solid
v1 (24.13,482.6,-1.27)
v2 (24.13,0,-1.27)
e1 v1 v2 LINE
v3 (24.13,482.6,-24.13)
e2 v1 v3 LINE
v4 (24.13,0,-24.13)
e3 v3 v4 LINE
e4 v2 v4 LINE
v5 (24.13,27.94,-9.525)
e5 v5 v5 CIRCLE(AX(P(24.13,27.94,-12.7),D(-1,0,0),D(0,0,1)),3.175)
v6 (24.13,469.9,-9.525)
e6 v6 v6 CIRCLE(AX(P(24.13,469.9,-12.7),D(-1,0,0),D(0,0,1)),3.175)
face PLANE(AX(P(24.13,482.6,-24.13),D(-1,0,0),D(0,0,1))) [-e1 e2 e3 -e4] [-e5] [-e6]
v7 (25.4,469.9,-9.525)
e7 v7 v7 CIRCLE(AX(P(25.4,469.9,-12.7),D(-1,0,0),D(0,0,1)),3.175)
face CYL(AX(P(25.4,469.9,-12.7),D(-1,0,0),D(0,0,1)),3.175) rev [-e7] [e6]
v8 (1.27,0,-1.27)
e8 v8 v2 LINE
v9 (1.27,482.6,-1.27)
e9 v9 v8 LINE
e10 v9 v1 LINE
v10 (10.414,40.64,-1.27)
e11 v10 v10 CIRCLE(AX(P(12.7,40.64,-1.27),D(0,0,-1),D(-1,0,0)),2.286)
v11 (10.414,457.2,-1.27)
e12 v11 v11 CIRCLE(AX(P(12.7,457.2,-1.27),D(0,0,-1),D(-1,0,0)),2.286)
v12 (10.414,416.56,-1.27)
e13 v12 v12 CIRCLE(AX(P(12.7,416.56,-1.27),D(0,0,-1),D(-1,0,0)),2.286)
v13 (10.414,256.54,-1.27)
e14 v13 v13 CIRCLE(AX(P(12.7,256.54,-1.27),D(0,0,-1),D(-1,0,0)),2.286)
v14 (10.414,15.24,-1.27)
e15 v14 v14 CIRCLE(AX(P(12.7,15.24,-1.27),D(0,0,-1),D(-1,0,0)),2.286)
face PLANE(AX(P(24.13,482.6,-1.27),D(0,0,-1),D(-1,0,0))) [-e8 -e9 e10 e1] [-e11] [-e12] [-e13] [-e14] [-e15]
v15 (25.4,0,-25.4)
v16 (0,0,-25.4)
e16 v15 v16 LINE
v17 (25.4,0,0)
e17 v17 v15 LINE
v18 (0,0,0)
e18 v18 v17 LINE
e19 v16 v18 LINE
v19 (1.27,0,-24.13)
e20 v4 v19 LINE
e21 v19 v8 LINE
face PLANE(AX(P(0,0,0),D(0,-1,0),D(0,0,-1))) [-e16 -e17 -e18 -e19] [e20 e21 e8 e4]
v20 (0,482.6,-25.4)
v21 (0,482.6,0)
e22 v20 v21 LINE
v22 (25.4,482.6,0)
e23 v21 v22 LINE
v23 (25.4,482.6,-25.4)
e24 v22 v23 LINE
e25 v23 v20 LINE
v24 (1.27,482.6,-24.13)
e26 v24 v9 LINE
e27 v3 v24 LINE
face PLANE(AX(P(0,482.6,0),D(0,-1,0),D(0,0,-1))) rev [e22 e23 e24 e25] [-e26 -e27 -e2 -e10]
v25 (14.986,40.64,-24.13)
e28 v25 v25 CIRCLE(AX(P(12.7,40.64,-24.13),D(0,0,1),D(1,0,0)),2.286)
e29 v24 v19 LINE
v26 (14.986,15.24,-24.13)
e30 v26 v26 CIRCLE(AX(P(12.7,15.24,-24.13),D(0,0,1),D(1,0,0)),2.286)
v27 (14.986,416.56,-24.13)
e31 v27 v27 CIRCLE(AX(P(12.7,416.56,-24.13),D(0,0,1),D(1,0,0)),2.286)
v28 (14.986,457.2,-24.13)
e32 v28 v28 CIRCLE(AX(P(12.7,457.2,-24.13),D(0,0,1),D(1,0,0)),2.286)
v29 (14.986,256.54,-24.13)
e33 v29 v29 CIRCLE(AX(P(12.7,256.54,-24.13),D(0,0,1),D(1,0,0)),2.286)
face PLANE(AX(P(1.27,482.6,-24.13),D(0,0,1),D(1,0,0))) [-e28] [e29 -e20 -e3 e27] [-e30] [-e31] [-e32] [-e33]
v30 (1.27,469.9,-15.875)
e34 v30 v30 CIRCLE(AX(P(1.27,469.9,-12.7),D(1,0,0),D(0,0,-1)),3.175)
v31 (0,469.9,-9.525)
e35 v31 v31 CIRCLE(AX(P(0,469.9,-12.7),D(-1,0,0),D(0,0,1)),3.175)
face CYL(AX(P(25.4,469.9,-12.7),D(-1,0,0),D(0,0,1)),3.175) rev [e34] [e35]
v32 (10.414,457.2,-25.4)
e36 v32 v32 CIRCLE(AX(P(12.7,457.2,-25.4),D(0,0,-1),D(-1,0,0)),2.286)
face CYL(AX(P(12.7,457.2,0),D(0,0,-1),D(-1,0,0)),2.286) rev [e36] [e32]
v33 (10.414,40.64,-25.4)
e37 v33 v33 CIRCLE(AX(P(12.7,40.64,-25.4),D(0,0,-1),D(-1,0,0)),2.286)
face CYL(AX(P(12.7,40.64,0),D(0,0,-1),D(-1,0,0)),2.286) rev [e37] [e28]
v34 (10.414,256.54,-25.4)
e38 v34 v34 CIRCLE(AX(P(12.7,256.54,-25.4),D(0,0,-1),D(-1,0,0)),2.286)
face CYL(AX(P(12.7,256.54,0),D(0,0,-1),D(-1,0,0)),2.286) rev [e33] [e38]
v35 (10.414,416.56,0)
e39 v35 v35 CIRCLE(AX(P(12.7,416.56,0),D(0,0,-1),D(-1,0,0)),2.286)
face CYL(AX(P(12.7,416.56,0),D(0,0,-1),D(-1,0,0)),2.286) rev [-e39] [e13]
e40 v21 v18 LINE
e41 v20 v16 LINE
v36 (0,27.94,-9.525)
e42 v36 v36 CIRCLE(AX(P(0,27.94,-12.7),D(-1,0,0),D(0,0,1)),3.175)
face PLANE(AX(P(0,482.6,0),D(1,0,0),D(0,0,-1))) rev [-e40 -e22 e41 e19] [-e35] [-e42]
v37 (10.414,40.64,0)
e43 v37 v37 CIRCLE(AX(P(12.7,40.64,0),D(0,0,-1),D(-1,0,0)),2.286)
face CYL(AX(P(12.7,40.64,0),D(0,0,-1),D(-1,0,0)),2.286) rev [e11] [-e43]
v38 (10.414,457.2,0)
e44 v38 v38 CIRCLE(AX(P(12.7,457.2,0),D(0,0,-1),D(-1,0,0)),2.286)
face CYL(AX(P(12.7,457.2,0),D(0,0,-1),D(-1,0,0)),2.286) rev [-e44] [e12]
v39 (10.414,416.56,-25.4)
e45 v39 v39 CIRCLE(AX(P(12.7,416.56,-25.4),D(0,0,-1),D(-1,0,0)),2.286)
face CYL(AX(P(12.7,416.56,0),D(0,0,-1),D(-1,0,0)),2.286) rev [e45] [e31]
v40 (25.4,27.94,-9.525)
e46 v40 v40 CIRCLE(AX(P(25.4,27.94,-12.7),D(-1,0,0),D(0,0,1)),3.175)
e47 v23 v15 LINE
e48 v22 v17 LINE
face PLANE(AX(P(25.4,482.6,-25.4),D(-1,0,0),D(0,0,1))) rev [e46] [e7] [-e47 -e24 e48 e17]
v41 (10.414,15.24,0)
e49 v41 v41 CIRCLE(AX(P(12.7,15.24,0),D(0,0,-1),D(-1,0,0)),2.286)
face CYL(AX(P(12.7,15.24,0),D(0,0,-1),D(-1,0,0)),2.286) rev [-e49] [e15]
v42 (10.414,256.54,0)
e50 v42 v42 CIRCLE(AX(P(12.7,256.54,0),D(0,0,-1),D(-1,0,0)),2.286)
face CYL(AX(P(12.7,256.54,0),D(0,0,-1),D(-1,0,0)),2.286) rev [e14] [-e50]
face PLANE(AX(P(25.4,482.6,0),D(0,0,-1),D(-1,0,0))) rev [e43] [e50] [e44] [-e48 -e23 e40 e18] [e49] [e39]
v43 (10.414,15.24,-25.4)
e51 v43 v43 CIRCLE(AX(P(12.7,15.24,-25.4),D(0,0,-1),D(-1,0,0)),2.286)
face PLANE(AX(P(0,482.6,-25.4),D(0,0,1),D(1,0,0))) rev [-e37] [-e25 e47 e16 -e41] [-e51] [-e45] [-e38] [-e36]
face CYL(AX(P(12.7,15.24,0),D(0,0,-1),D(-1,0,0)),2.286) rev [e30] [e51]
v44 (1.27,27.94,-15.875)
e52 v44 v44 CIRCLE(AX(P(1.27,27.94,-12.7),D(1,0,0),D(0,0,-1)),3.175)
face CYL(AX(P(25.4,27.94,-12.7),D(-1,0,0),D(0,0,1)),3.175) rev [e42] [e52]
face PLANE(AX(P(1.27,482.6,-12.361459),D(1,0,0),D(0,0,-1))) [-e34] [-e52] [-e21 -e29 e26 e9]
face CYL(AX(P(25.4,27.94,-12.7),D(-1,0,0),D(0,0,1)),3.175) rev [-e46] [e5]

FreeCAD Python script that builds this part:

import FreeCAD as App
import Part
import Sketcher
from FreeCAD import Vector
Q = App.Units.Quantity

doc = App.newDocument("Part")
params = doc.addObject("Spreadsheet::Sheet", "Params")
for row, (alias, value) in enumerate([
    ("sketch1_width", "1 in"),
    ("sketch1_width2", "0.9 in"),
    ("pad1_length", "19 in"),
    ("sketch2_diameter", "0.18 in"),
    ("sketch3_diameter", "0.18 in"),
    ("sketch4_diameter", "0.18 in"),
    ("sketch5_diameter", "0.18 in"),
    ("sketch6_diameter", "0.18 in"),
    ("sketch7_diameter", "0.25 in"),
    ("sketch8_diameter", "0.25 in"),
], start=1):
    params.set(f"A{row}", alias)
    params.set(f"B{row}", "=" + value)
    params.setAlias(f"B{row}", alias)

body = doc.addObject("PartDesign::Body", "Body")

# Sketch on XZ plane
sketch1 = body.newObject("Sketcher::SketchObject", "Sketch")
sketch1.AttachmentSupport = (doc.getObject("XZ_Plane"), [""])
sketch1.MapMode = "FlatFace"
sketch1.addGeometry([
    Part.LineSegment(Vector(0, -25, 0), Vector(0, 0, 0)),  # 0
    Part.LineSegment(Vector(0, 0, 0), Vector(25, 0, 0)),  # 1
    Part.LineSegment(Vector(25, 0, 0), Vector(25, -25, 0)),  # 2
    Part.LineSegment(Vector(25, -25, 0), Vector(0, -25, 0)),  # 3
    Part.LineSegment(Vector(1, -1, 0), Vector(1, -24, 0)),  # 4
    Part.LineSegment(Vector(1, -24, 0), Vector(24, -24, 0)),  # 5
    Part.LineSegment(Vector(24, -24, 0), Vector(24, -1, 0)),  # 6
    Part.LineSegment(Vector(24, -1, 0), Vector(1, -1, 0)),  # 7
], False)
sketch1.addConstraint([
    Sketcher.Constraint("Coincident", 0, 2, 1, 1),
    Sketcher.Constraint("Coincident", 1, 2, 2, 1),
    Sketcher.Constraint("Coincident", 2, 2, 3, 1),
    Sketcher.Constraint("Coincident", 3, 2, 0, 1),
    Sketcher.Constraint("Coincident", 4, 2, 5, 1),
    Sketcher.Constraint("Coincident", 5, 2, 6, 1),
    Sketcher.Constraint("Coincident", 6, 2, 7, 1),
    Sketcher.Constraint("Coincident", 7, 2, 4, 1),
    Sketcher.Constraint("Vertical", 0),
    Sketcher.Constraint("Horizontal", 1),
    Sketcher.Constraint("Vertical", 2),
    Sketcher.Constraint("Horizontal", 3),
    Sketcher.Constraint("Vertical", 4),
    Sketcher.Constraint("Horizontal", 5),
    Sketcher.Constraint("Vertical", 6),
    Sketcher.Constraint("Horizontal", 7),
    Sketcher.Constraint("Coincident", 0, 2, -1, 1),
    Sketcher.Constraint("Equal", 3, 0),
    Sketcher.Constraint("Equal", 7, 4),
    Sketcher.Constraint("DistanceX", 1, 1, 1, 2, Q("1 in")),
    Sketcher.Constraint("DistanceX", 5, 1, 5, 2, Q("0.9 in")),
    Sketcher.Constraint("DistanceX", -1, 1, 4, 2, Q("0.05 in")),
    Sketcher.Constraint("DistanceY", 4, 2, -1, 1, Q("0.95 in")),
])
sketch1.setExpression("Constraints[19]", "Params.sketch1_width")
sketch1.setExpression("Constraints[20]", "Params.sketch1_width2")
pad1 = body.newObject("PartDesign::Pad", "Pad")
pad1.Profile = sketch1
pad1.setExpression("Length", "Params.pad1_length")
pad1.Reversed = True

# Sketch on XY plane
sketch2 = body.newObject("Sketcher::SketchObject", "Sketch001")
sketch2.AttachmentSupport = (doc.getObject("XY_Plane"), [""])
sketch2.MapMode = "FlatFace"
sketch2.AttachmentOffset = App.Placement(Vector(0, 0, -1 * 25.4), App.Rotation())
sketch2.addGeometry(Part.Circle(Vector(12.7, 416.6, 0), Vector(0, 0, 1), 2.3), False)
sketch2.addConstraint([
    Sketcher.Constraint("Diameter", 0, Q("0.18 in")),
    Sketcher.Constraint("DistanceX", -1, 1, 0, 3, Q("0.5 in")),
    Sketcher.Constraint("DistanceY", -1, 1, 0, 3, Q("16.4 in")),
])
sketch2.setExpression("Constraints[0]", "Params.sketch2_diameter")
pocket1 = body.newObject("PartDesign::Pocket", "Pocket")
pocket1.Profile = sketch2
pocket1.Type = "ThroughAll"
pocket1.Reversed = True

# Sketch on XY plane
sketch3 = body.newObject("Sketcher::SketchObject", "Sketch002")
sketch3.AttachmentSupport = (doc.getObject("XY_Plane"), [""])
sketch3.MapMode = "FlatFace"
sketch3.AttachmentOffset = App.Placement(Vector(0, 0, -1 * 25.4), App.Rotation())
sketch3.addGeometry(Part.Circle(Vector(12.7, 40.6, 0), Vector(0, 0, 1), 2.3), False)
sketch3.addConstraint([
    Sketcher.Constraint("Diameter", 0, Q("0.18 in")),
    Sketcher.Constraint("DistanceX", -1, 1, 0, 3, Q("0.5 in")),
    Sketcher.Constraint("DistanceY", -1, 1, 0, 3, Q("1.6 in")),
])
sketch3.setExpression("Constraints[0]", "Params.sketch3_diameter")
pocket2 = body.newObject("PartDesign::Pocket", "Pocket001")
pocket2.Profile = sketch3
pocket2.Type = "ThroughAll"
pocket2.Reversed = True

# Sketch on XY plane
sketch4 = body.newObject("Sketcher::SketchObject", "Sketch003")
sketch4.AttachmentSupport = (doc.getObject("XY_Plane"), [""])
sketch4.MapMode = "FlatFace"
sketch4.AttachmentOffset = App.Placement(Vector(0, 0, -1 * 25.4), App.Rotation())
sketch4.addGeometry(Part.Circle(Vector(12.7, 256.5, 0), Vector(0, 0, 1), 2.3), False)
sketch4.addConstraint([
    Sketcher.Constraint("Diameter", 0, Q("0.18 in")),
    Sketcher.Constraint("DistanceX", -1, 1, 0, 3, Q("0.5 in")),
    Sketcher.Constraint("DistanceY", -1, 1, 0, 3, Q("10.1 in")),
])
sketch4.setExpression("Constraints[0]", "Params.sketch4_diameter")
pocket3 = body.newObject("PartDesign::Pocket", "Pocket002")
pocket3.Profile = sketch4
pocket3.Type = "ThroughAll"
pocket3.Reversed = True

# Sketch on XY plane
sketch5 = body.newObject("Sketcher::SketchObject", "Sketch004")
sketch5.AttachmentSupport = (doc.getObject("XY_Plane"), [""])
sketch5.MapMode = "FlatFace"
sketch5.AttachmentOffset = App.Placement(Vector(0, 0, -1 * 25.4), App.Rotation())
sketch5.addGeometry(Part.Circle(Vector(12.7, 457.2, 0), Vector(0, 0, 1), 2.3), False)
sketch5.addConstraint([
    Sketcher.Constraint("Diameter", 0, Q("0.18 in")),
    Sketcher.Constraint("DistanceY", -1, 1, 0, 3, Q("18 in")),
    Sketcher.Constraint("DistanceX", -1, 1, 0, 3, Q("0.5 in")),
])
sketch5.setExpression("Constraints[0]", "Params.sketch5_diameter")
pocket4 = body.newObject("PartDesign::Pocket", "Pocket003")
pocket4.Profile = sketch5
pocket4.Type = "ThroughAll"
pocket4.Reversed = True

# Sketch on XY plane
sketch6 = body.newObject("Sketcher::SketchObject", "Sketch005")
sketch6.AttachmentSupport = (doc.getObject("XY_Plane"), [""])
sketch6.MapMode = "FlatFace"
sketch6.AttachmentOffset = App.Placement(Vector(0, 0, -1 * 25.4), App.Rotation())
sketch6.addGeometry(Part.Circle(Vector(12.7, 15.2, 0), Vector(0, 0, 1), 2.3), False)
sketch6.addConstraint([
    Sketcher.Constraint("Diameter", 0, Q("0.18 in")),
    Sketcher.Constraint("DistanceX", -1, 1, 0, 3, Q("0.5 in")),
    Sketcher.Constraint("DistanceY", -1, 1, 0, 3, Q("0.6 in")),
])
sketch6.setExpression("Constraints[0]", "Params.sketch6_diameter")
pocket5 = body.newObject("PartDesign::Pocket", "Pocket004")
pocket5.Profile = sketch6
pocket5.Type = "ThroughAll"
pocket5.Reversed = True

# Sketch on YZ plane
sketch7 = body.newObject("Sketcher::SketchObject", "Sketch006")
sketch7.AttachmentSupport = (doc.getObject("YZ_Plane"), [""])
sketch7.MapMode = "FlatFace"
sketch7.addGeometry(Part.Circle(Vector(469.9, -12.7, 0), Vector(0, 0, 1), 3.2), False)
sketch7.addConstraint([
    Sketcher.Constraint("Diameter", 0, Q("0.25 in")),
    Sketcher.Constraint("DistanceX", -1, 1, 0, 3, Q("18.5 in")),
    Sketcher.Constraint("DistanceY", 0, 3, -1, 1, Q("0.5 in")),
])
sketch7.setExpression("Constraints[0]", "Params.sketch7_diameter")
pocket6 = body.newObject("PartDesign::Pocket", "Pocket005")
pocket6.Profile = sketch7
pocket6.Type = "ThroughAll"
pocket6.Reversed = True

# Sketch on YZ plane
sketch8 = body.newObject("Sketcher::SketchObject", "Sketch007")
sketch8.AttachmentSupport = (doc.getObject("YZ_Plane"), [""])
sketch8.MapMode = "FlatFace"
sketch8.addGeometry(Part.Circle(Vector(27.9, -12.7, 0), Vector(0, 0, 1), 3.2), False)
sketch8.addConstraint([
    Sketcher.Constraint("Diameter", 0, Q("0.25 in")),
    Sketcher.Constraint("DistanceX", -1, 1, 0, 3, Q("1.1 in")),
    Sketcher.Constraint("DistanceY", 0, 3, -1, 1, Q("0.5 in")),
])
sketch8.setExpression("Constraints[0]", "Params.sketch8_diameter")
pocket7 = body.newObject("PartDesign::Pocket", "Pocket006")
pocket7.Profile = sketch8
pocket7.Type = "ThroughAll"
pocket7.Reversed = True

doc.recompute()
